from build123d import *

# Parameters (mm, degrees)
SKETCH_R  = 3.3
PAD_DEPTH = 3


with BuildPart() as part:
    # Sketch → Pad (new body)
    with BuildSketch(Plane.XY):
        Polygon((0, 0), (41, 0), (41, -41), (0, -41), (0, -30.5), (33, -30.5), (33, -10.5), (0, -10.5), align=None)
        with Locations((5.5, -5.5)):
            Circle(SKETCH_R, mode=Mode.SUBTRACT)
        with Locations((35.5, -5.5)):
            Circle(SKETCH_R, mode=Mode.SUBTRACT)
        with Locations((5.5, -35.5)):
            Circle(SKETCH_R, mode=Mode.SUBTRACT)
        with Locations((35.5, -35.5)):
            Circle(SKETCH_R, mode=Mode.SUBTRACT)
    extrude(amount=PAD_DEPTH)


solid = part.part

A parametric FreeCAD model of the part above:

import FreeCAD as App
import Part
import Sketcher
from FreeCAD import Vector
Q = App.Units.Quantity


def add_polygon(sketch, points):
    """Adds a closed chain of lines whose ends are joined by coincident constraints."""
    first, n = sketch.GeometryCount, len(points)
    for a, b in zip(points, points[1:] + points[:1]):
        sketch.addGeometry(Part.LineSegment(App.Vector(*a, 0), App.Vector(*b, 0)), False)
    for i in range(n):
        sketch.addConstraint(Sketcher.Constraint("Coincident", first + i, 2, first + (i + 1) % n, 1))

doc = App.newDocument("Part")
body = doc.addObject("PartDesign::Body", "Body")

sketch1 = body.newObject("Sketcher::SketchObject", "Sketch")
sketch1.AttachmentSupport = (doc.getObject("XY_Plane"), [""])
sketch1.MapMode = "FlatFace"
add_polygon(sketch1, [(41, 0), (0, 0), (0, -10.5), (33, -10.5), (33, -30.5), (0, -30.5), (0, -41), (41, -41)])
sketch1.addGeometry(Part.Circle(Vector(35.5, -35.5, 0), Vector(0, 0, 1), 3.3), False)
sketch1.addGeometry(Part.Circle(Vector(5.5, -35.5, 0), Vector(0, 0, 1), 3.3), False)
sketch1.addGeometry(Part.Circle(Vector(35.5, -5.5, 0), Vector(0, 0, 1), 3.3), False)
sketch1.addGeometry(Part.Circle(Vector(5.5, -5.5, 0), Vector(0, 0, 1), 3.3), False)
sketch1.addConstraint(Sketcher.Constraint("Horizontal", 0))
sketch1.addConstraint(Sketcher.Constraint("Vertical", 1))
sketch1.addConstraint(Sketcher.Constraint("Horizontal", 2))
sketch1.addConstraint(Sketcher.Constraint("Vertical", 3))
sketch1.addConstraint(Sketcher.Constraint("Horizontal", 4))
sketch1.addConstraint(Sketcher.Constraint("Vertical", 5))
sketch1.addConstraint(Sketcher.Constraint("Horizontal", 6))
sketch1.addConstraint(Sketcher.Constraint("Vertical", 7))
sketch1.addConstraint(Sketcher.Constraint("Coincident", 0, 2, -1, 1))
sketch1.addConstraint(Sketcher.Constraint("Equal", 8, 9))
sketch1.addConstraint(Sketcher.Constraint("Equal", 9, 10))
sketch1.addConstraint(Sketcher.Constraint("Equal", 10, 11))
sketch1.addConstraint(Sketcher.Constraint("PointOnObject", 4, 2, -2))
sketch1.addConstraint(Sketcher.Constraint("Horizontal", 8, 3, 9, 3))
sketch1.addConstraint(Sketcher.Constraint("Horizontal", 10, 3, 11, 3))
sketch1.addConstraint(Sketcher.Constraint("Vertical", 8, 3, 10, 3))
sketch1.addConstraint(Sketcher.Constraint("Vertical", 9, 3, 11, 3))
sketch1.addConstraint(Sketcher.Constraint("Equal", 1, 5))
sketch1.addConstraint(Sketcher.Constraint("Equal", 6, 7))
sketch1.addConstraint(Sketcher.Constraint("Diameter", 8, Q("6.6 mm")))
sketch1.addConstraint(Sketcher.Constraint("DistanceX", 0, 2, 0, 1, Q("41 mm")))
sketch1.addConstraint(Sketcher.Constraint("DistanceX", 2, 1, 2, 2, Q("33 mm")))
sketch1.addConstraint(Sketcher.Constraint("DistanceY", 3, 2, 3, 1, Q("20 mm")))
sketch1.addConstraint(Sketcher.Constraint("DistanceX", 9, 3, 8, 3, Q("30 mm")))
sketch1.addConstraint(Sketcher.Constraint("DistanceY", 8, 3, 10, 3, Q("30 mm")))
sketch1.addConstraint(Sketcher.Constraint("DistanceY", 1, 2, 11, 3, Q("5 mm")))
sketch1.addConstraint(Sketcher.Constraint("DistanceX", -1, 1, 8, 3, Q("35.5 mm")))
pad1 = body.newObject("PartDesign::Pad", "Pad")
pad1.Profile = sketch1
pad1.Length = 3

doc.recompute()
